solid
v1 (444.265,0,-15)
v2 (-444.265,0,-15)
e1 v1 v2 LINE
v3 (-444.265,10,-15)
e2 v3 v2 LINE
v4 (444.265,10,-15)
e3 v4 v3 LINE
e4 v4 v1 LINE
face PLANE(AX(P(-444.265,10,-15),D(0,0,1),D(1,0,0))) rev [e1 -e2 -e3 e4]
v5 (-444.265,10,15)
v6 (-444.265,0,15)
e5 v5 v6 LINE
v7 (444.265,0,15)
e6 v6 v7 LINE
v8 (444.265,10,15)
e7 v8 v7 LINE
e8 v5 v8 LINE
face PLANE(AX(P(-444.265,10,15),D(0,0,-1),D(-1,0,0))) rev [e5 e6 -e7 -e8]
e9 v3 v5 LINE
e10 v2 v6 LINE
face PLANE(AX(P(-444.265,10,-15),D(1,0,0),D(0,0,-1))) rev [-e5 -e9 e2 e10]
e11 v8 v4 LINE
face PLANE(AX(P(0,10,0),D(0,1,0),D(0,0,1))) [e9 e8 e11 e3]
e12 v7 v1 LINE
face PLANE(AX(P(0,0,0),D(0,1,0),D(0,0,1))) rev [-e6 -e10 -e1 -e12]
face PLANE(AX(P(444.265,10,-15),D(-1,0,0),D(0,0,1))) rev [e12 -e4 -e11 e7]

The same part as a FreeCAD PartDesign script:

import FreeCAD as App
import Part
import Sketcher

V = App.Vector


def add_polygon(sketch, points):
    """Adds a closed chain of lines whose ends are joined by coincident constraints."""
    first, n = sketch.GeometryCount, len(points)
    for a, b in zip(points, points[1:] + points[:1]):
        sketch.addGeometry(Part.LineSegment(App.Vector(*a, 0), App.Vector(*b, 0)), False)
    for i in range(n):
        sketch.addConstraint(Sketcher.Constraint("Coincident", first + i, 2, first + (i + 1) % n, 1))

doc = App.newDocument("Part")
body = doc.addObject("PartDesign::Body", "Body")

sketch1 = body.newObject("Sketcher::SketchObject", "Sketch")
sketch1.AttachmentSupport = (doc.getObject("XZ_Plane"), [""])
sketch1.MapMode = "FlatFace"
add_polygon(sketch1, [(-444, -15), (-444, 15), (444, 15), (444, -15)])
sketch1.addConstraint([
    Sketcher.Constraint("Vertical", 0),
    Sketcher.Constraint("Horizontal", 1),
    Sketcher.Constraint("Vertical", 2),
    Sketcher.Constraint("Horizontal", 3),
    Sketcher.Constraint("Symmetric", 0, 2, 2, 2, -1, 1),
    Sketcher.Constraint("DistanceY", 0, 1, 0, 2, 30.0),
    Sketcher.Constraint("DistanceX", 1, 1, 1, 2, 888.53),
])
pad1 = body.newObject("PartDesign::Pad", "Pad")
pad1.Profile = sketch1
pad1.Length = 10
pad1.Reversed = True

doc.recompute()
